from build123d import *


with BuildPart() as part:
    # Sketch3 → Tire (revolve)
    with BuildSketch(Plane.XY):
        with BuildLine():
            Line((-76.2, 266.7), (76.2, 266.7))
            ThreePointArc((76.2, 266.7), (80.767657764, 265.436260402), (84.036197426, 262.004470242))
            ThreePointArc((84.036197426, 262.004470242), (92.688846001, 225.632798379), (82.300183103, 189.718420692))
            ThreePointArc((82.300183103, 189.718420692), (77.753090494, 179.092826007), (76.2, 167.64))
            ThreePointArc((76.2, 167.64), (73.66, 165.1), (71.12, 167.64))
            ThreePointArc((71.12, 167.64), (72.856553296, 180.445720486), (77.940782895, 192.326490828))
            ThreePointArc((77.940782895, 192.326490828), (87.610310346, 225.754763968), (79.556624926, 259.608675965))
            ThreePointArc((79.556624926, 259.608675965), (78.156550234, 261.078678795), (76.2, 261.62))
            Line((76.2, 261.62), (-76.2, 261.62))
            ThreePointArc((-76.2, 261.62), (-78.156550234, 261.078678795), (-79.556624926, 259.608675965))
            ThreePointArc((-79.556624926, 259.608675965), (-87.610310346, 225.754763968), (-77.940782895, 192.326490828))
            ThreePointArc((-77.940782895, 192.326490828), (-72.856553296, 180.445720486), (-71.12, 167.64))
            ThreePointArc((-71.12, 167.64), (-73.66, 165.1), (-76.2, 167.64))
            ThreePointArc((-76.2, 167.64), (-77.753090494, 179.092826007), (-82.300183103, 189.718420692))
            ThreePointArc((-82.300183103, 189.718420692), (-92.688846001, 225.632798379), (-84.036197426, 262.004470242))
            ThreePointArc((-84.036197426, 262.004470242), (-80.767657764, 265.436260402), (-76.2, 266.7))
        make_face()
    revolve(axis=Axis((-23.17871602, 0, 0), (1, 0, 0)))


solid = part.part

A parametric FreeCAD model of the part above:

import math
import FreeCAD as App
import Part
import Sketcher
from FreeCAD import Vector
Q = App.Units.Quantity

doc = App.newDocument("Part")
body = doc.addObject("PartDesign::Body", "Body")

# Sketch on XY plane
sketch1 = doc.addObject("Sketcher::SketchObject", "Sketch")
body.addObject(sketch1)
sketch1.AttachmentSupport = (doc.XY_Plane, [""])
sketch1.MapMode = "FlatFace"
sketch1.addGeometry(Part.LineSegment(Vector(76.2, 266.7, 0), Vector(-76.2, 266.7, 0)), False)
sketch1.addGeometry(Part.ArcOfCircle(Part.Circle(Vector(-76.2, 257.8, 0), Vector(0, 0, 1), 8.9), math.radians(90), math.radians(152)), False)
sketch1.addGeometry(Part.ArcOfCircle(Part.Circle(Vector(-19.3, 227.4, 0), Vector(0, 0, 1), 73.4), math.radians(152), math.radians(211)), False)
sketch1.addGeometry(Part.ArcOfCircle(Part.Circle(Vector(-119.2, 167.6, 0), Vector(0, 0, 1), 43), math.radians(0), math.radians(31)), False)
sketch1.addGeometry(Part.ArcOfCircle(Part.Circle(Vector(-73.7, 167.6, 0), Vector(0, 0, 1), 2.5), math.radians(180), math.radians(360)), False)
sketch1.addGeometry(Part.ArcOfCircle(Part.Circle(Vector(-119.2, 167.6, 0), Vector(0, 0, 1), 48.1), math.radians(0), math.radians(31)), False)
sketch1.addGeometry(Part.ArcOfCircle(Part.Circle(Vector(-19.3, 227.4, 0), Vector(0, 0, 1), 68.3), math.radians(152), math.radians(211)), False)
sketch1.addGeometry(Part.ArcOfCircle(Part.Circle(Vector(-76.2, 257.8, 0), Vector(0, 0, 1), 3.8), math.radians(90), math.radians(152)), False)
sketch1.addGeometry(Part.LineSegment(Vector(-76.2, 261.6, 0), Vector(76.2, 261.6, 0)), False)
sketch1.addGeometry(Part.ArcOfCircle(Part.Circle(Vector(76.2, 257.8, 0), Vector(0, 0, 1), 3.8), math.radians(28), math.radians(90)), False)
sketch1.addGeometry(Part.ArcOfCircle(Part.Circle(Vector(19.3, 227.4, 0), Vector(0, 0, 1), 68.3), math.radians(-31), math.radians(28)), False)
sketch1.addGeometry(Part.ArcOfCircle(Part.Circle(Vector(119.2, 167.6, 0), Vector(0, 0, 1), 48.1), math.radians(149), math.radians(180)), False)
sketch1.addGeometry(Part.ArcOfCircle(Part.Circle(Vector(73.7, 167.6, 0), Vector(0, 0, 1), 2.5), math.radians(180), math.radians(360)), False)
sketch1.addGeometry(Part.ArcOfCircle(Part.Circle(Vector(119.2, 167.6, 0), Vector(0, 0, 1), 43), math.radians(149), math.radians(180)), False)
sketch1.addGeometry(Part.ArcOfCircle(Part.Circle(Vector(19.3, 227.4, 0), Vector(0, 0, 1), 73.4), math.radians(-31), math.radians(28)), False)
sketch1.addGeometry(Part.ArcOfCircle(Part.Circle(Vector(76.2, 257.8, 0), Vector(0, 0, 1), 8.9), math.radians(28), math.radians(90)), False)
sketch1.addConstraint(Sketcher.Constraint("Tangent", 0, 2, 1, 1))
sketch1.addConstraint(Sketcher.Constraint("Tangent", 1, 2, 2, 1))
sketch1.addConstraint(Sketcher.Constraint("Tangent", 2, 2, 3, 2))
sketch1.addConstraint(Sketcher.Constraint("Tangent", 3, 1, 4, 1))
sketch1.addConstraint(Sketcher.Constraint("Tangent", 4, 2, 5, 1))
sketch1.addConstraint(Sketcher.Constraint("Tangent", 5, 2, 6, 2))
sketch1.addConstraint(Sketcher.Constraint("Tangent", 6, 1, 7, 2))
sketch1.addConstraint(Sketcher.Constraint("Tangent", 7, 1, 8, 1))
sketch1.addConstraint(Sketcher.Constraint("Tangent", 8, 2, 9, 2))
sketch1.addConstraint(Sketcher.Constraint("Tangent", 9, 1, 10, 2))
sketch1.addConstraint(Sketcher.Constraint("Tangent", 10, 1, 11, 1))
sketch1.addConstraint(Sketcher.Constraint("Tangent", 11, 2, 12, 1))
sketch1.addConstraint(Sketcher.Constraint("Tangent", 12, 2, 13, 2))
sketch1.addConstraint(Sketcher.Constraint("Tangent", 13, 1, 14, 1))
sketch1.addConstraint(Sketcher.Constraint("Tangent", 14, 2, 15, 1))
sketch1.addConstraint(Sketcher.Constraint("Tangent", 15, 2, 0, 1))
sketch1.addConstraint(Sketcher.Constraint("Horizontal", 0))
sketch1.addConstraint(Sketcher.Constraint("Horizontal", 8))
sketch1.addConstraint(Sketcher.Constraint("Coincident", 5, 3, 3, 3))
sketch1.addConstraint(Sketcher.Constraint("Coincident", 6, 3, 2, 3))
sketch1.addConstraint(Sketcher.Constraint("Coincident", 7, 3, 1, 3))
sketch1.addConstraint(Sketcher.Constraint("Coincident", 13, 3, 11, 3))
sketch1.addConstraint(Sketcher.Constraint("Coincident", 14, 3, 10, 3))
sketch1.addConstraint(Sketcher.Constraint("Coincident", 15, 3, 9, 3))
sketch1.addConstraint(Sketcher.Constraint("Equal", 7, 9))
sketch1.addConstraint(Sketcher.Constraint("Equal", 6, 10))
sketch1.addConstraint(Sketcher.Constraint("Equal", 5, 11))
sketch1.addConstraint(Sketcher.Constraint("Symmetric", 2, 3, 10, 3, -2))
sketch1.addConstraint(Sketcher.Constraint("Symmetric", 4, 3, 12, 3, -2))
sketch1.addConstraint(Sketcher.Constraint("Horizontal", 3, 3, 4, 3))
sketch1.addConstraint(Sketcher.Constraint("Vertical", 0, 2, 3, 1))
sketch1.addConstraint(Sketcher.Constraint("Radius", 4, Q("0.1 in")))
sketch1.addConstraint(Sketcher.Constraint("DistanceX", 0, 2, 0, 1, Q("6 in")))
sketch1.addConstraint(Sketcher.Constraint("DistanceY", -1, 1, 3, 3, Q("6.6 in")))
sketch1.addConstraint(Sketcher.Constraint("DistanceY", -1, 1, 0, 2, Q("10.5 in")))
sketch1.addConstraint(Sketcher.Constraint("Radius", 1, Q("8.886536 mm")))
sketch1.addConstraint(Sketcher.Constraint("Radius", 2, Q("73.385908 mm")))
sketch1.addConstraint(Sketcher.Constraint("Radius", 3, Q("43.004356 mm")))
revolution = doc.addObject("PartDesign::Revolution", "Revolution")
body.addObject(revolution)
revolution.Profile = sketch1
revolution.ReferenceAxis = (sketch1, ["H_Axis"])
revolution.Angle = 360

doc.recompute()
